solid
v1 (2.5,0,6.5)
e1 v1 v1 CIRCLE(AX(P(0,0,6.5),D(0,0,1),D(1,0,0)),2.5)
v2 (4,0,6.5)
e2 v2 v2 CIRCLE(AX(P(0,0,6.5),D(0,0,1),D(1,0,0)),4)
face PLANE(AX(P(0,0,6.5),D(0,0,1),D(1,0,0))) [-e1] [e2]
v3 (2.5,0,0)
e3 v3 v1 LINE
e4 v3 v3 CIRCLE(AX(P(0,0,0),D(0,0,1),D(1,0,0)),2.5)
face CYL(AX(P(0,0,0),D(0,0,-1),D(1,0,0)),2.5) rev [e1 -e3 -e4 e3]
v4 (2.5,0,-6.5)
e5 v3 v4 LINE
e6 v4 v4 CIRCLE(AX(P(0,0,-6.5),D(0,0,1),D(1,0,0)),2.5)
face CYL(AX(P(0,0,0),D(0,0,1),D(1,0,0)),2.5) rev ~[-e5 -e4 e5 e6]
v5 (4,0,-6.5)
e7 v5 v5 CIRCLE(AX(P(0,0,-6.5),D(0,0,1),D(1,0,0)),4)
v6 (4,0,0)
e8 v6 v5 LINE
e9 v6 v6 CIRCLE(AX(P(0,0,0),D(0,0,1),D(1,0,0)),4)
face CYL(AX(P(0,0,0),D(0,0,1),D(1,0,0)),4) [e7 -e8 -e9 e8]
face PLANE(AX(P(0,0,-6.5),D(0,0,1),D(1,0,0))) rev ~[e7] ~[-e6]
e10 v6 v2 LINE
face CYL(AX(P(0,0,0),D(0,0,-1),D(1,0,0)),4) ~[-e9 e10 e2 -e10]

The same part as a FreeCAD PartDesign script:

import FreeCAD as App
import Part
import Sketcher

doc = App.newDocument("Part")
body = doc.addObject("PartDesign::Body", "Body")

# Sketch on XY plane
sketch1 = body.newObject("Sketcher::SketchObject", "Sketch")
sketch1.AttachmentSupport = (doc.getObject("XY_Plane"), [""])
sketch1.MapMode = "FlatFace"
sketch1.addGeometry([
    Part.Circle(App.Vector(0, 0, 0), App.Vector(0, 0, 1), 4),
    Part.Circle(App.Vector(0, 0, 0), App.Vector(0, 0, 1), 2.5),
], False)
sketch1.addConstraint([
    Sketcher.Constraint("Coincident", 0, 3, -1, 1),
    Sketcher.Constraint("Coincident", 1, 3, -1, 1),
    Sketcher.Constraint("Diameter", 0, 8.0),
    Sketcher.Constraint("Diameter", 1, 5.0),
])
pad1 = body.newObject("PartDesign::Pad", "Pad")
pad1.Profile = sketch1
pad1.Length = 13
pad1.Midplane = True

doc.recompute()
